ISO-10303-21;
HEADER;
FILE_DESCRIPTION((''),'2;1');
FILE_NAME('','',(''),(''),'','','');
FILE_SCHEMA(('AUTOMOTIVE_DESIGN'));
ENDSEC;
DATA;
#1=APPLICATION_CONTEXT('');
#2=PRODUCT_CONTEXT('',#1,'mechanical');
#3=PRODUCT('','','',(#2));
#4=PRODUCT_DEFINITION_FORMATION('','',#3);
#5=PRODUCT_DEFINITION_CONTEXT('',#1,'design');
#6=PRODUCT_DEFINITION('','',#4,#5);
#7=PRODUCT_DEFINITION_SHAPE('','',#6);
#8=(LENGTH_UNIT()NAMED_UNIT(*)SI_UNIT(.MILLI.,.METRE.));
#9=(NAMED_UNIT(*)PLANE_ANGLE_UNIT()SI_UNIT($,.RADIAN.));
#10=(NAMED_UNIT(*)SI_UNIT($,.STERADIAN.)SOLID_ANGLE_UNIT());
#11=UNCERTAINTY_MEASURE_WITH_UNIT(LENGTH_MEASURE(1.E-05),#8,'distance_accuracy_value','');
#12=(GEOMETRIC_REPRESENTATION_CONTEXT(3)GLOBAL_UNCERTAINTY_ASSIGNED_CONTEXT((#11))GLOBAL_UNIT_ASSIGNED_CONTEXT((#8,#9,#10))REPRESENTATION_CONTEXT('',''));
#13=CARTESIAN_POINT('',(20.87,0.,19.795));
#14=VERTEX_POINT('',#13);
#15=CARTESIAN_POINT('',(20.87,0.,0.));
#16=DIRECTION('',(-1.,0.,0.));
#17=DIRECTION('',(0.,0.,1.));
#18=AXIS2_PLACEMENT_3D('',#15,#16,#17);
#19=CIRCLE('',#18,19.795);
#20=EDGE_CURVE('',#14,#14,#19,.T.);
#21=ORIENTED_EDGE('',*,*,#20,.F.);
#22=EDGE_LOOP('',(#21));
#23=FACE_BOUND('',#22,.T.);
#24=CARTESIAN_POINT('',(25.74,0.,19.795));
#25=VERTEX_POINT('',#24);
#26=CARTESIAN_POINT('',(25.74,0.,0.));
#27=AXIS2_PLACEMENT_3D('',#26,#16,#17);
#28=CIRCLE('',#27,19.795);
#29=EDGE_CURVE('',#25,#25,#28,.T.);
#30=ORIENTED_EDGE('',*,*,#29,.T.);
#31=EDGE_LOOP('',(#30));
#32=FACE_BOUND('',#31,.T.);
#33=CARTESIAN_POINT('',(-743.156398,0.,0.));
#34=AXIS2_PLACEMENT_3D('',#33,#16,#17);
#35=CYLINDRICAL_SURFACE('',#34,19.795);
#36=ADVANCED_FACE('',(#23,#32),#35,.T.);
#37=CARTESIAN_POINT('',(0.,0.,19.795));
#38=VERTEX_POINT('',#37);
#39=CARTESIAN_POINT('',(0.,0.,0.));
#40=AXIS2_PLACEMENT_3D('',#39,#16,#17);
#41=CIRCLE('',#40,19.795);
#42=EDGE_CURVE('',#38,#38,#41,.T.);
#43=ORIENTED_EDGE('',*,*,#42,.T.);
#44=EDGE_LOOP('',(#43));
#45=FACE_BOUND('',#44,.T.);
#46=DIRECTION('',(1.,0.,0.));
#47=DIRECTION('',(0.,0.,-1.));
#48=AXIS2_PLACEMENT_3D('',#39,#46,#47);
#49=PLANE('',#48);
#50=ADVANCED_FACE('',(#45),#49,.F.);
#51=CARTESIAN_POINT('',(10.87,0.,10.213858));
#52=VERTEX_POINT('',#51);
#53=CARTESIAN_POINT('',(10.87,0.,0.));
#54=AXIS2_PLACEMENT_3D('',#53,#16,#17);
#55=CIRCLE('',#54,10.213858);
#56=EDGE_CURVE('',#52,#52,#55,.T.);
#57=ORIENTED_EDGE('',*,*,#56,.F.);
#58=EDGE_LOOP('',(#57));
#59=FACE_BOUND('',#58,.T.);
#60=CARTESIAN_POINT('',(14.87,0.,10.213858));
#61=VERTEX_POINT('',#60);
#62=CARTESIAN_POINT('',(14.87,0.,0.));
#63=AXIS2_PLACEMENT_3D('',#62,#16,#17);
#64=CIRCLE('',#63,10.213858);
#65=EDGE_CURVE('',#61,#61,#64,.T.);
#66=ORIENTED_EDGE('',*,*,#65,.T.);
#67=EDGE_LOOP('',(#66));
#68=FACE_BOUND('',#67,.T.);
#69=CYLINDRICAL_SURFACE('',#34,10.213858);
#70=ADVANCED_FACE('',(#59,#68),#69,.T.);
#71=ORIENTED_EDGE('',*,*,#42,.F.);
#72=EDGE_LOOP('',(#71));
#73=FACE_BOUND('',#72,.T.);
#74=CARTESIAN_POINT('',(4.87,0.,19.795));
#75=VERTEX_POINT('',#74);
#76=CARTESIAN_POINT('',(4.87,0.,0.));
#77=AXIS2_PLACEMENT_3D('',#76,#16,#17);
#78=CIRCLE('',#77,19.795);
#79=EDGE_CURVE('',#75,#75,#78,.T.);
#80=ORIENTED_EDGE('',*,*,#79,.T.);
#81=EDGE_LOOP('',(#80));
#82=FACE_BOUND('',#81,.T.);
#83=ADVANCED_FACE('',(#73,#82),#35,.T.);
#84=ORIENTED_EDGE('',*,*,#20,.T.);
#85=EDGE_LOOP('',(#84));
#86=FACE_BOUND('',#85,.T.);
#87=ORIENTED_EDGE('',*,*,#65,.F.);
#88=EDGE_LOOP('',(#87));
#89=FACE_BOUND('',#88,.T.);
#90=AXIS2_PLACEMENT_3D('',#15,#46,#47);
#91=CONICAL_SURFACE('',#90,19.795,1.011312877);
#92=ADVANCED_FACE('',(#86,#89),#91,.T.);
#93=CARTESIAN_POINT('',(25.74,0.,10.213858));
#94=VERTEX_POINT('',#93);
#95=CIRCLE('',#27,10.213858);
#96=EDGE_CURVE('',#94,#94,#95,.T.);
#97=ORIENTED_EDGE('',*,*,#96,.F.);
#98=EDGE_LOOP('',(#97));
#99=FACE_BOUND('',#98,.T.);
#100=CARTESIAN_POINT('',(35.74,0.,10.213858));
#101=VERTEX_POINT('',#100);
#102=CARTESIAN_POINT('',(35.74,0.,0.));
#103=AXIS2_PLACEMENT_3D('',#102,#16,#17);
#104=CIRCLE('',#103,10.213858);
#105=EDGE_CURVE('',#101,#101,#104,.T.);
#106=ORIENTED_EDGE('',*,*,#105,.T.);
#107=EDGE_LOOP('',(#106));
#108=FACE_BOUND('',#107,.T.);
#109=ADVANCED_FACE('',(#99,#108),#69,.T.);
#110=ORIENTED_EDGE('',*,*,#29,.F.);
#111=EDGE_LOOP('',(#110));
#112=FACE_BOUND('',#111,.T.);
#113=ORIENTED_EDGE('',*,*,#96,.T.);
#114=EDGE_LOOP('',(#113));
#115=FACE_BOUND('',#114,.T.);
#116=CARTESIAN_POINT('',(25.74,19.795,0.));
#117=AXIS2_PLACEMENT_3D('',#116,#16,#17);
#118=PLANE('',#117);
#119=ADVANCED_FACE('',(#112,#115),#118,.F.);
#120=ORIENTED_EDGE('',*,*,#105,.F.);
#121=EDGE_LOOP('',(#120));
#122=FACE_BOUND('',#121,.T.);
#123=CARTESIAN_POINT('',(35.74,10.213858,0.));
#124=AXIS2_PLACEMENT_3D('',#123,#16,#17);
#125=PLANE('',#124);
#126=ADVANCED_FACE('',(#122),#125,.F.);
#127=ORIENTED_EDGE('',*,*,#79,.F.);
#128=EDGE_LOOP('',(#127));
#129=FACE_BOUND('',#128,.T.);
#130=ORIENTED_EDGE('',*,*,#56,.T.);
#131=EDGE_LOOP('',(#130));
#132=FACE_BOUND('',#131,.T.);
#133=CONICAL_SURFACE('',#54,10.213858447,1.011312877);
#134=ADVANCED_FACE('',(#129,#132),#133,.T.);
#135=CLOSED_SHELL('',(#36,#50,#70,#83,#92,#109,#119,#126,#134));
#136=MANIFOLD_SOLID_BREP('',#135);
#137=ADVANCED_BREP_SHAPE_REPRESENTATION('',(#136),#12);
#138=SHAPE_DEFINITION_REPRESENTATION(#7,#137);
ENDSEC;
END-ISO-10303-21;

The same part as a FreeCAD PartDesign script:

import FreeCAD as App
import Part
import Sketcher

doc = App.newDocument("Part")
body = doc.addObject("PartDesign::Body", "Body")

sketch1 = body.newObject("Sketcher::SketchObject", "Sketch")
sketch1.AttachmentSupport = (doc.getObject("XY_Plane"), [""])
sketch1.MapMode = "FlatFace"
sketch1.addGeometry(Part.LineSegment(App.Vector(0, 19.8, 0), App.Vector(0, 0, 0)), False)
sketch1.addGeometry(Part.LineSegment(App.Vector(0, 0, 0), App.Vector(35.7, 0, 0)), False)
sketch1.addGeometry(Part.LineSegment(App.Vector(35.7, 0, 0), App.Vector(35.7, 10.2, 0)), False)
sketch1.addGeometry(Part.LineSegment(App.Vector(35.7, 10.2, 0), App.Vector(25.7, 10.2, 0)), False)
sketch1.addGeometry(Part.LineSegment(App.Vector(25.7, 10.2, 0), App.Vector(25.7, 19.8, 0)), False)
sketch1.addGeometry(Part.LineSegment(App.Vector(25.7, 19.8, 0), App.Vector(20.9, 19.8, 0)), False)
sketch1.addGeometry(Part.LineSegment(App.Vector(20.9, 19.8, 0), App.Vector(14.9, 10.2, 0)), False)
sketch1.addGeometry(Part.LineSegment(App.Vector(14.9, 10.2, 0), App.Vector(10.9, 10.2, 0)), False)
sketch1.addGeometry(Part.LineSegment(App.Vector(10.9, 10.2, 0), App.Vector(4.9, 19.8, 0)), False)
sketch1.addGeometry(Part.LineSegment(App.Vector(4.9, 19.8, 0), App.Vector(0, 19.8, 0)), False)
sketch1.addConstraint(Sketcher.Constraint("Coincident", 0, 2, 1, 1))
sketch1.addConstraint(Sketcher.Constraint("Coincident", 1, 2, 2, 1))
sketch1.addConstraint(Sketcher.Constraint("Coincident", 2, 2, 3, 1))
sketch1.addConstraint(Sketcher.Constraint("Coincident", 3, 2, 4, 1))
sketch1.addConstraint(Sketcher.Constraint("Coincident", 4, 2, 5, 1))
sketch1.addConstraint(Sketcher.Constraint("Coincident", 5, 2, 6, 1))
sketch1.addConstraint(Sketcher.Constraint("Coincident", 6, 2, 7, 1))
sketch1.addConstraint(Sketcher.Constraint("Coincident", 7, 2, 8, 1))
sketch1.addConstraint(Sketcher.Constraint("Coincident", 8, 2, 9, 1))
sketch1.addConstraint(Sketcher.Constraint("Coincident", 9, 2, 0, 1))
sketch1.addConstraint(Sketcher.Constraint("Vertical", 0))
sketch1.addConstraint(Sketcher.Constraint("Horizontal", 1))
sketch1.addConstraint(Sketcher.Constraint("Vertical", 2))
sketch1.addConstraint(Sketcher.Constraint("Horizontal", 3))
sketch1.addConstraint(Sketcher.Constraint("Vertical", 4))
sketch1.addConstraint(Sketcher.Constraint("Horizontal", 5))
sketch1.addConstraint(Sketcher.Constraint("Horizontal", 7))
sketch1.addConstraint(Sketcher.Constraint("Horizontal", 9))
sketch1.addConstraint(Sketcher.Constraint("Coincident", 0, 2, -1, 1))
sketch1.addConstraint(Sketcher.Constraint("Horizontal", 3, 2, 6, 2))
sketch1.addConstraint(Sketcher.Constraint("Horizontal", 5, 2, 8, 2))
sketch1.addConstraint(Sketcher.Constraint("Equal", 5, 9))
sketch1.addConstraint(Sketcher.Constraint("Equal", 6, 8))
sketch1.addConstraint(Sketcher.Constraint("DistanceX", 3, 2, 3, 1, 10.0))
sketch1.addConstraint(Sketcher.Constraint("DistanceX", 7, 2, 7, 1, 4.0))
sketch1.addConstraint(Sketcher.Constraint("DistanceX", 6, 2, 5, 2, 6.0))
sketch1.addConstraint(Sketcher.Constraint("DistanceX", 1, 1, 1, 2, 35.74))
sketch1.addConstraint(Sketcher.Constraint("DistanceY", 0, 2, 0, 1, 19.795))
sketch1.addConstraint(Sketcher.Constraint("DistanceY", 2, 1, 2, 2, 10.213858))
revolution = body.newObject("PartDesign::Revolution", "Revolution")
revolution.Profile = sketch1
revolution.ReferenceAxis = (sketch1, ["H_Axis"])
revolution.Angle = 360

doc.recompute()
